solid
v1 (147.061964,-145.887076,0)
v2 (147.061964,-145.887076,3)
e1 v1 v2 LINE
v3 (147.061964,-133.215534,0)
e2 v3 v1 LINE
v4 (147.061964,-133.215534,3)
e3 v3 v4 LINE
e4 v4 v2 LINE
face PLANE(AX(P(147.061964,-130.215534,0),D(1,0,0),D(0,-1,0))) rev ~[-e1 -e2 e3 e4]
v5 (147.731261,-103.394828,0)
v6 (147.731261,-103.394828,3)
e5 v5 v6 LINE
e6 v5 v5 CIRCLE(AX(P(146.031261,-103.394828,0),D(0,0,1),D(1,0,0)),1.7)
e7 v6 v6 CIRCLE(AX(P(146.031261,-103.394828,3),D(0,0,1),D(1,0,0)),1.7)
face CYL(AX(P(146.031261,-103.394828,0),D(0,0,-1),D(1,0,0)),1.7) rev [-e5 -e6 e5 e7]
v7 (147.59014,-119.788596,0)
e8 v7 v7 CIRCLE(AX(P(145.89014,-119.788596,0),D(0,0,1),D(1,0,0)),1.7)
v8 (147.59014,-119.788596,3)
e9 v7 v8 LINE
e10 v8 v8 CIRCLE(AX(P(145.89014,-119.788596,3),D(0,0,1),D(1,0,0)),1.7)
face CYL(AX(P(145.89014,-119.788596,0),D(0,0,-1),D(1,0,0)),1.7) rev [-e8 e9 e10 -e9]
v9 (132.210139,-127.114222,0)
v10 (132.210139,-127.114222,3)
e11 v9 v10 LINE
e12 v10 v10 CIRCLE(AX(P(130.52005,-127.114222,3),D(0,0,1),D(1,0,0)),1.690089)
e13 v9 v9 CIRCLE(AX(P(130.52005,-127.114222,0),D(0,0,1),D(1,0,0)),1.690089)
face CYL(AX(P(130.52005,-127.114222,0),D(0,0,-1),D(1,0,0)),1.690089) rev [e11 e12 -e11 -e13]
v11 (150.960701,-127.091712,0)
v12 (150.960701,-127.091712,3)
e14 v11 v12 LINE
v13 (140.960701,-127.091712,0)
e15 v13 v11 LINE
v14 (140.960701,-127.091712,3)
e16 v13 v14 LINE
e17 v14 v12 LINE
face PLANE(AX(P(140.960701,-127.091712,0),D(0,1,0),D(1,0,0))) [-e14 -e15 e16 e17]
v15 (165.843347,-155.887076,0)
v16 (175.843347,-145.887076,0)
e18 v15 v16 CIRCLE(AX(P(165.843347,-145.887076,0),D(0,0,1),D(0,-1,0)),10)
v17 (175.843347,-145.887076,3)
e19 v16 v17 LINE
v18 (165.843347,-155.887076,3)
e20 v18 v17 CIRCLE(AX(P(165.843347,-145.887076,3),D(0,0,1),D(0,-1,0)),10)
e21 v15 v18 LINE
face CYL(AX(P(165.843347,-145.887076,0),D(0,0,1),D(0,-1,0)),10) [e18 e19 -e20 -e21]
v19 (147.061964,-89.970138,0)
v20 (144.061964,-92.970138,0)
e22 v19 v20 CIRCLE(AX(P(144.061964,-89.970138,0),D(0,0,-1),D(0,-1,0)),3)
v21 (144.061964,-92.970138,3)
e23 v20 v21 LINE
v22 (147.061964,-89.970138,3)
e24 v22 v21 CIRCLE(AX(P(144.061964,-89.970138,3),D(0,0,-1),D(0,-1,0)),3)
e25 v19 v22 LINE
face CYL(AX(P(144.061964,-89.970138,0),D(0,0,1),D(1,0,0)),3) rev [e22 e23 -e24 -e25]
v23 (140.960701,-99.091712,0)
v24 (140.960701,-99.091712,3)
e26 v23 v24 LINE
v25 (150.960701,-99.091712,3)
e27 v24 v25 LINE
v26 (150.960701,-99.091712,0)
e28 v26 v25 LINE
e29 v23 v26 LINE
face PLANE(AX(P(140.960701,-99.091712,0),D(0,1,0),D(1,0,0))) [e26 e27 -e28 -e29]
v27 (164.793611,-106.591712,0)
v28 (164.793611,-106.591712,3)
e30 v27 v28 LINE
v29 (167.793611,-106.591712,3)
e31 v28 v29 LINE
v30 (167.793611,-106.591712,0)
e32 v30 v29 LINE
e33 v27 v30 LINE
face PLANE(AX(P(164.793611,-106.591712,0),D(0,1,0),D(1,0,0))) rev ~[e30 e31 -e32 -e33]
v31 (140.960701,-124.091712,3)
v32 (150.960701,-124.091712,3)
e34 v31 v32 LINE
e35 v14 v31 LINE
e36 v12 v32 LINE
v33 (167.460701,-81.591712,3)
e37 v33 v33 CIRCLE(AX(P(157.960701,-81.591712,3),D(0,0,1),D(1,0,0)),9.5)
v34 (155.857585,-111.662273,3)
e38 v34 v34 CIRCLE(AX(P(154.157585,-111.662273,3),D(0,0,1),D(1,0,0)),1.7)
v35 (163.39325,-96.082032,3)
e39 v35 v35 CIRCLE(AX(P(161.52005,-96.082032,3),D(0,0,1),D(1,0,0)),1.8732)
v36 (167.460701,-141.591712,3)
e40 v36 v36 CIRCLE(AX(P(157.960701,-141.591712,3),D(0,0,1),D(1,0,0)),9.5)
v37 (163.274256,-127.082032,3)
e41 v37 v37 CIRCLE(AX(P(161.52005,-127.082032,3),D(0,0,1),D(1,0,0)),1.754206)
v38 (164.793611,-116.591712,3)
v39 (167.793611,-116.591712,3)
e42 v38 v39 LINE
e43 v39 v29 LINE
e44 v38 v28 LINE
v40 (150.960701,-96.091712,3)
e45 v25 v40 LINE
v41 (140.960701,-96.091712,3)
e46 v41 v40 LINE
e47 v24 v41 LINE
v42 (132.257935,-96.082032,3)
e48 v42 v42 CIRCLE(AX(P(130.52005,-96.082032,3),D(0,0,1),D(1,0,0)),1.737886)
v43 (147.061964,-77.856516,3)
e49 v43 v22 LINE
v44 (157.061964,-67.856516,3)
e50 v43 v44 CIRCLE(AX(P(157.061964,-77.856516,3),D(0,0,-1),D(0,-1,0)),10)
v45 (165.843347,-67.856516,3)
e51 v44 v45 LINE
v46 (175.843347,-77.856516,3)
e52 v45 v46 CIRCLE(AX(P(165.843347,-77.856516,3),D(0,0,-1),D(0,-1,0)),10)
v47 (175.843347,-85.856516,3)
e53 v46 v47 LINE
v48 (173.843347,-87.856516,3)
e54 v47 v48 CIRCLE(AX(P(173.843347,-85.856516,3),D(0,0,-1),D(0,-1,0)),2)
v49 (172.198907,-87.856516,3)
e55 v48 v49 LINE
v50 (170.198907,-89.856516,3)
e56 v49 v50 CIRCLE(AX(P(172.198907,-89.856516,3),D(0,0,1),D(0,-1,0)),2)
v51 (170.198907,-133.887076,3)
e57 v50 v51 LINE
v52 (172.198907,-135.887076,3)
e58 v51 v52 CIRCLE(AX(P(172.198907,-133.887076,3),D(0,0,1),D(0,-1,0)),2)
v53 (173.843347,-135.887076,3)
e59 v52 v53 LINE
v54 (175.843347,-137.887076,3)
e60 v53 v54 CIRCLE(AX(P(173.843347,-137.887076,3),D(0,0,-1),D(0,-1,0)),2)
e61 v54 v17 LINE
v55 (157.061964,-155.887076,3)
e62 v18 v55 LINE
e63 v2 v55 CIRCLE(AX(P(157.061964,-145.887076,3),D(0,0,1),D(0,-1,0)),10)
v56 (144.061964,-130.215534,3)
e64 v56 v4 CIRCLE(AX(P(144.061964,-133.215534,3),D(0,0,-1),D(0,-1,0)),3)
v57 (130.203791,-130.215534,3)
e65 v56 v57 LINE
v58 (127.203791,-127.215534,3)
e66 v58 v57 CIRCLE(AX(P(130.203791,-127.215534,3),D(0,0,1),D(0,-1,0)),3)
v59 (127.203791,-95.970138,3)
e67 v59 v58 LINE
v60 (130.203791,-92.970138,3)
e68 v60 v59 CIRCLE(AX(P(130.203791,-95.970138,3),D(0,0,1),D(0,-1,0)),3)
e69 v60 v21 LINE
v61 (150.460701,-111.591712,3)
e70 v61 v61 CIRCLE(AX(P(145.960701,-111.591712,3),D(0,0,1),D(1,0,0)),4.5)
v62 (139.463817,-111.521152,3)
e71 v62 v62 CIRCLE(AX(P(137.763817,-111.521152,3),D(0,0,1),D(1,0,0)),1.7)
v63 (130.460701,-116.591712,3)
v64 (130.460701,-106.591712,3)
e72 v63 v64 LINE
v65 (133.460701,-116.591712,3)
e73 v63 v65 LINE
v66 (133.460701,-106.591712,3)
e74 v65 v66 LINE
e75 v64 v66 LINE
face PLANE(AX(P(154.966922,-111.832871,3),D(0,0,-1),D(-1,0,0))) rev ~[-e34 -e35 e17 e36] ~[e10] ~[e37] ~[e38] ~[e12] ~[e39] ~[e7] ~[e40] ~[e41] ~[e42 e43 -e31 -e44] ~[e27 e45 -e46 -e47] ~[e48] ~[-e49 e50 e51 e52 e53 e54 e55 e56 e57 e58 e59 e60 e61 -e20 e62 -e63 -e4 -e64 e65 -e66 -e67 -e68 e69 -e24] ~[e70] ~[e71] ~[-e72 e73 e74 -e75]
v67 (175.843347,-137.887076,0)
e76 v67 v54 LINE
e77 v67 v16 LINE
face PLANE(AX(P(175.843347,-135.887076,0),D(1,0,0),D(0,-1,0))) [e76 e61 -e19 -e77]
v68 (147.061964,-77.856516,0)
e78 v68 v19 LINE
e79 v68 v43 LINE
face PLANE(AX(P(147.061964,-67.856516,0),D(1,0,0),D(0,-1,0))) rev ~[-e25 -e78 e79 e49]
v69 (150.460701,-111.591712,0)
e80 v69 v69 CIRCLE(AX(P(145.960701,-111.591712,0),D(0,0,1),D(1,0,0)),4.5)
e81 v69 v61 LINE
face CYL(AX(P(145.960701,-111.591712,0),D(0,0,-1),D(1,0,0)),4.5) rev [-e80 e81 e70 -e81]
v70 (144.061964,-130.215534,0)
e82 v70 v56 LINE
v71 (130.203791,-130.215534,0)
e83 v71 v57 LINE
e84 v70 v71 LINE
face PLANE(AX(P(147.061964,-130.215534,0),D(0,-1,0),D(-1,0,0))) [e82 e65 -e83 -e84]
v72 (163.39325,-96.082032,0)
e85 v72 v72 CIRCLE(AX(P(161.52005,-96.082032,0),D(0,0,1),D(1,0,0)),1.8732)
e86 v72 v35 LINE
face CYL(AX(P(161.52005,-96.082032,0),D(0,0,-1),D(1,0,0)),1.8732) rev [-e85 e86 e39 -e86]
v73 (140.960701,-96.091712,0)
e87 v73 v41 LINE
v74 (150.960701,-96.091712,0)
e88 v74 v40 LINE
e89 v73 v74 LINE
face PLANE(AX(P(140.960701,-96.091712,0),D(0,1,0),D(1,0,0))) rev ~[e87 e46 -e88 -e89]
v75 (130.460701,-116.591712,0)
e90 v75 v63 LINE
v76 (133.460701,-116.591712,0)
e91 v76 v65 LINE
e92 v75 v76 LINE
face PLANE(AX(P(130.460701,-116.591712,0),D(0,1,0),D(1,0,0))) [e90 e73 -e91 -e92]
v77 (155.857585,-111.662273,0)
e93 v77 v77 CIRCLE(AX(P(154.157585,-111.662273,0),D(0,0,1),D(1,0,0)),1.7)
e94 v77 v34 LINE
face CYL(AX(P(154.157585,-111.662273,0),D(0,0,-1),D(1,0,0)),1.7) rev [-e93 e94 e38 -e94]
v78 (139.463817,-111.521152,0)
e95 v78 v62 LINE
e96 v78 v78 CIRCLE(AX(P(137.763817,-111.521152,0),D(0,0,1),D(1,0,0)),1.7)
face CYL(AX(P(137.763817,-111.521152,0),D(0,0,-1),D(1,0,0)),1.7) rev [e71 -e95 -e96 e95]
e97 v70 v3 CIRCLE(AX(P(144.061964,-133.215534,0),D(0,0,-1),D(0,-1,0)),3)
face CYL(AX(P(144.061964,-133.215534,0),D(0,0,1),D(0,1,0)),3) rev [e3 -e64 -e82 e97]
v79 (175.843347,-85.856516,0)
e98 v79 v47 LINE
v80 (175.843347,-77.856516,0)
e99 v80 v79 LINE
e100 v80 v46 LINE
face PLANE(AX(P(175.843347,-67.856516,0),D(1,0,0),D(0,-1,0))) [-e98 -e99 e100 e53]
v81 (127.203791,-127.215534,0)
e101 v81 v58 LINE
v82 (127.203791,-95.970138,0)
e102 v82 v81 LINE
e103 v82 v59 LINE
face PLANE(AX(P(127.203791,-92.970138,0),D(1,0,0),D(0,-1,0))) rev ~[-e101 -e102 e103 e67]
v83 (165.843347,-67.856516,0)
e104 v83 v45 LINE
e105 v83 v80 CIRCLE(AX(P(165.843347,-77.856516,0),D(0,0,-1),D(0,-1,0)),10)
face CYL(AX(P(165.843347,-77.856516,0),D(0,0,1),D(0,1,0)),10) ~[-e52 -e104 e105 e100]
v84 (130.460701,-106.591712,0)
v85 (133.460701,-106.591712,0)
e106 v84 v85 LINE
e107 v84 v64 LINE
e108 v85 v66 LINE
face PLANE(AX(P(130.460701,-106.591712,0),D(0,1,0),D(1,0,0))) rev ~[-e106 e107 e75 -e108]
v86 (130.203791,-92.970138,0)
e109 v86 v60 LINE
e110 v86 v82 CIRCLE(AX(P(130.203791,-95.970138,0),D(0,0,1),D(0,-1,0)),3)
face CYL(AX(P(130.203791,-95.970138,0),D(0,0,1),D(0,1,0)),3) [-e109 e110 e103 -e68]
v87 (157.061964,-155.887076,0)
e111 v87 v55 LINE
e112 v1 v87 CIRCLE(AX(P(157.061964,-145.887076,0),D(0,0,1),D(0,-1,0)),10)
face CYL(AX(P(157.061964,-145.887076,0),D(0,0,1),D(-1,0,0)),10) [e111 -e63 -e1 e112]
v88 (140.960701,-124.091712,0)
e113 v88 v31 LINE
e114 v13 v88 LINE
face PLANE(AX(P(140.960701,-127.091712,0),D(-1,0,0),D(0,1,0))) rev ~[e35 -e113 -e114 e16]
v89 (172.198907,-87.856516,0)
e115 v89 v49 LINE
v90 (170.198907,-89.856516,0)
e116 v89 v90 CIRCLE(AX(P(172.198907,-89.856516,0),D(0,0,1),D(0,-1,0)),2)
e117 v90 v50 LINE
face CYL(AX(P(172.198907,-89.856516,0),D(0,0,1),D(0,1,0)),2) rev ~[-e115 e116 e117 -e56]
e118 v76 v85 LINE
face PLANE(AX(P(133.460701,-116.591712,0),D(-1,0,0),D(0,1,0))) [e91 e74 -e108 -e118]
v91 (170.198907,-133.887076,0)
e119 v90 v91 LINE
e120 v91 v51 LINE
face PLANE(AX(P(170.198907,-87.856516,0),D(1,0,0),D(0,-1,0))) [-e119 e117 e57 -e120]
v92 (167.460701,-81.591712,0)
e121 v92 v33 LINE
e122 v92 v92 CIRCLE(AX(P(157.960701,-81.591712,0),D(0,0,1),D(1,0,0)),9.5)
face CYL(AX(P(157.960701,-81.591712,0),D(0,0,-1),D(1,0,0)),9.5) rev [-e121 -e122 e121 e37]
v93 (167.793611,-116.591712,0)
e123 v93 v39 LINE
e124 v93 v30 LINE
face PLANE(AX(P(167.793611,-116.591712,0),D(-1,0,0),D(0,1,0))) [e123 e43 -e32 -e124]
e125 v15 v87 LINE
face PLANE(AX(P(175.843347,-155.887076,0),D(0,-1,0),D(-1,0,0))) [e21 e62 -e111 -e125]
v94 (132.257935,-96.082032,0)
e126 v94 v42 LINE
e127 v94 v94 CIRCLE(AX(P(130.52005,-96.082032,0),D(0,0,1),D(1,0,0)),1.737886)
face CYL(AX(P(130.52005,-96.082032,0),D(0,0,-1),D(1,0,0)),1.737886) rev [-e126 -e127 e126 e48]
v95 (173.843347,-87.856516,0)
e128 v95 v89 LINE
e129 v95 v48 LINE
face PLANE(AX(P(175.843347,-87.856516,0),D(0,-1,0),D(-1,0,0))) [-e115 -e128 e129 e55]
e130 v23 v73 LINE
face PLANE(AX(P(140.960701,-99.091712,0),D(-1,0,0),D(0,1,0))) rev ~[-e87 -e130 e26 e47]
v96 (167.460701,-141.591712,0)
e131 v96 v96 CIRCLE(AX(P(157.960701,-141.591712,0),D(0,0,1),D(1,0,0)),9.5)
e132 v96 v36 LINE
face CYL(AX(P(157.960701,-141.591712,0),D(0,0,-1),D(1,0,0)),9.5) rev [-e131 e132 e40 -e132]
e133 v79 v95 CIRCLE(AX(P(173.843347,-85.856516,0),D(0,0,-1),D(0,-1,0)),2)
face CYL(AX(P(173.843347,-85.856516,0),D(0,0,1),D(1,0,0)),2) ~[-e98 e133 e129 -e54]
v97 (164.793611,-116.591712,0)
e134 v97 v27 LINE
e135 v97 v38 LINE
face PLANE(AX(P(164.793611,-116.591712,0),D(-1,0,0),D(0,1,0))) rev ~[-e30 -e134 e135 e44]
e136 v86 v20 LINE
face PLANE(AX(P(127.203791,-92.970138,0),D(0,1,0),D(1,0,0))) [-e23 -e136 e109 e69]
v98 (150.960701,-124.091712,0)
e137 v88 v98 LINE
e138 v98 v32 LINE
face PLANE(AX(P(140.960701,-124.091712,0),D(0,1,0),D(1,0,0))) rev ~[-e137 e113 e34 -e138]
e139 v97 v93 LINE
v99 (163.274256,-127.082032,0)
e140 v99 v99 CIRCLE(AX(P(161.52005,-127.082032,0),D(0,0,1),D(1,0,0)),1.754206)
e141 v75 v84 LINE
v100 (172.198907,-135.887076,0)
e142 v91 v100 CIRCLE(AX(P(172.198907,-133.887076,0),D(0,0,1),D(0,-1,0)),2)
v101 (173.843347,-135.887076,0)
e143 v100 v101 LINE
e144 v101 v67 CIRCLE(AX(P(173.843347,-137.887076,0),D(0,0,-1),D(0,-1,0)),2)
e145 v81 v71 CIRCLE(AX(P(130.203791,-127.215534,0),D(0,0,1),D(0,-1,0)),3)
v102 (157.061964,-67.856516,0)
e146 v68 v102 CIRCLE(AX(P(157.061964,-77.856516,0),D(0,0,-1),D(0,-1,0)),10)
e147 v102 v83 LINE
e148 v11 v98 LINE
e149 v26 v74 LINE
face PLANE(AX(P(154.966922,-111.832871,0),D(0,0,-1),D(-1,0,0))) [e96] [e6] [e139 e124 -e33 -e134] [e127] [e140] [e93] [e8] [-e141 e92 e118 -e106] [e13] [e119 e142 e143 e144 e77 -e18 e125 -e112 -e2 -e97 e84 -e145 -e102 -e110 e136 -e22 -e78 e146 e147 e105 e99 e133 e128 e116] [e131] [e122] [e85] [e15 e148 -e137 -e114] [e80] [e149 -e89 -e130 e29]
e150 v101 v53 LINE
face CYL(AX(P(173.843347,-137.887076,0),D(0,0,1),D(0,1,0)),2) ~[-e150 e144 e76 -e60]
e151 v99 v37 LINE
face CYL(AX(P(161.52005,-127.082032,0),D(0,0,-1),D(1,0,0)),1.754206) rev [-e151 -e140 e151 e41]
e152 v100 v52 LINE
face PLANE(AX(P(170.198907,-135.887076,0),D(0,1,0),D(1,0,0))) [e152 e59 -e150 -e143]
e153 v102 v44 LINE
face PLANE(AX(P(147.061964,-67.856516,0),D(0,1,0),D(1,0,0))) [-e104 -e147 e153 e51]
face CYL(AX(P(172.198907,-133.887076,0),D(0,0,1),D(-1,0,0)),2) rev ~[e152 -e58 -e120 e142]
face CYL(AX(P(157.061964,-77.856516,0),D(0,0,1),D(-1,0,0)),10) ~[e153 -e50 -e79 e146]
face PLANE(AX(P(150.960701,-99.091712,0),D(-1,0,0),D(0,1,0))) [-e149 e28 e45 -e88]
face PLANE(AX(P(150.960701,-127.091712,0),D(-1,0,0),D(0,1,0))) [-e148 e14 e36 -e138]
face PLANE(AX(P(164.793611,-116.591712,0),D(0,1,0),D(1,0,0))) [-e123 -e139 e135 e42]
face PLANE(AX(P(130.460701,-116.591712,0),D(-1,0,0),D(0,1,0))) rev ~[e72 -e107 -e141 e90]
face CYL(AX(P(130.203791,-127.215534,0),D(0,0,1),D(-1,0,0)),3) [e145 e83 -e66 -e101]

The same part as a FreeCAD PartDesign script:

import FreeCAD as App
import Part
import Sketcher

V = App.Vector
Q = App.Units.Quantity


def edges_at(feature, points):
    """Names of the edges that pass closest to the given points."""
    edges = feature.Shape.Edges
    near = lambda p: min(range(len(edges)), key=lambda i: edges[i].distToShape(Part.Vertex(*p))[0])
    return sorted({f"Edge{near(p) + 1}" for p in points})


def add_polygon(sketch, points):
    """Adds a closed chain of lines whose ends are joined by coincident constraints."""
    first, n = sketch.GeometryCount, len(points)
    for a, b in zip(points, points[1:] + points[:1]):
        sketch.addGeometry(Part.LineSegment(App.Vector(*a, 0), App.Vector(*b, 0)), False)
    for i in range(n):
        sketch.addConstraint(Sketcher.Constraint("Coincident", first + i, 2, first + (i + 1) % n, 1))

doc = App.newDocument("Part")
body = doc.addObject("PartDesign::Body", "Body")

# Sketch on XY plane
sketch1 = doc.addObject("Sketcher::SketchObject", "Sketch")
body.addObject(sketch1)
sketch1.AttachmentSupport = (doc.XY_Plane, [""])
sketch1.MapMode = "FlatFace"
add_polygon(sketch1, [(147.1, -67.9), (147.1, -93), (127.2, -93), (127.2, -130.2), (147.1, -130.2), (147.1, -155.9), (175.8, -155.9), (175.8, -135.9), (170.2, -135.9), (170.2, -87.9), (175.8, -87.9), (175.8, -67.9)])  # lines 0-11
sketch1.addGeometry(Part.Circle(V(158, -141.6, 0), V(0, 0, 1), 9.5), False)  # 12
sketch1.addGeometry(Part.Circle(V(161.5, -127.1, 0), V(0, 0, 1), 1.8), False)  # 13
add_polygon(sketch1, [(164.8, -116.6), (164.8, -106.6), (167.8, -106.6), (167.8, -116.6)])  # lines 14-17
sketch1.addGeometry(Part.Circle(V(154.2, -111.7, 0), V(0, 0, 1), 1.7), False)  # 18
add_polygon(sketch1, [(141, -127.1), (141, -124.1), (151, -124.1), (151, -127.1)])  # lines 19-22
sketch1.addGeometry(Part.Circle(V(145.9, -119.8, 0), V(0, 0, 1), 1.7), False)  # 23
sketch1.addGeometry(Part.Circle(V(146, -111.6, 0), V(0, 0, 1), 4.5), False)  # 24
sketch1.addGeometry(Part.Circle(V(130.5, -127.1, 0), V(0, 0, 1), 1.7), False)  # 25
add_polygon(sketch1, [(130.5, -116.6), (130.5, -106.6), (133.5, -106.6), (133.5, -116.6)])  # lines 26-29
sketch1.addGeometry(Part.Circle(V(161.5, -96.1, 0), V(0, 0, 1), 1.9), False)  # 30
sketch1.addGeometry(Part.Circle(V(158, -81.6, 0), V(0, 0, 1), 9.5), False)  # 31
sketch1.addGeometry(Part.Circle(V(146, -103.4, 0), V(0, 0, 1), 1.7), False)  # 32
add_polygon(sketch1, [(141, -99.1), (141, -96.1), (151, -96.1), (151, -99.1)])  # lines 33-36
sketch1.addGeometry(Part.Circle(V(137.8, -111.5, 0), V(0, 0, 1), 1.7), False)  # 37
sketch1.addGeometry(Part.Circle(V(130.5, -96.1, 0), V(0, 0, 1), 1.7), False)  # 38
sketch1.addConstraint([
    Sketcher.Constraint("Vertical", 0),
    Sketcher.Constraint("Horizontal", 1),
    Sketcher.Constraint("Vertical", 2),
    Sketcher.Constraint("Horizontal", 3),
    Sketcher.Constraint("Vertical", 4),
    Sketcher.Constraint("Horizontal", 5),
    Sketcher.Constraint("Vertical", 6),
    Sketcher.Constraint("Horizontal", 7),
    Sketcher.Constraint("Vertical", 8),
    Sketcher.Constraint("Horizontal", 9),
    Sketcher.Constraint("Vertical", 10),
    Sketcher.Constraint("Horizontal", 11),
    Sketcher.Constraint("Vertical", 14),
    Sketcher.Constraint("Horizontal", 15),
    Sketcher.Constraint("Vertical", 16),
    Sketcher.Constraint("Horizontal", 17),
    Sketcher.Constraint("Vertical", 19),
    Sketcher.Constraint("Horizontal", 20),
    Sketcher.Constraint("Vertical", 21),
    Sketcher.Constraint("Horizontal", 22),
    Sketcher.Constraint("Vertical", 26),
    Sketcher.Constraint("Horizontal", 27),
    Sketcher.Constraint("Vertical", 28),
    Sketcher.Constraint("Horizontal", 29),
    Sketcher.Constraint("Vertical", 33),
    Sketcher.Constraint("Horizontal", 34),
    Sketcher.Constraint("Vertical", 35),
    Sketcher.Constraint("Horizontal", 36),
    Sketcher.Constraint("Equal", 18, 23),
    Sketcher.Constraint("Equal", 12, 31),
    Sketcher.Constraint("Equal", 23, 32),
    Sketcher.Constraint("Equal", 32, 37),
    Sketcher.Constraint("Horizontal", 30, 3, 38, 3),
    Sketcher.Constraint("Horizontal", 15, 2, 26, 2),
    Sketcher.Constraint("Horizontal", 17, 2, 28, 2),
    Sketcher.Constraint("Vertical", 13, 3, 30, 3),
    Sketcher.Constraint("Vertical", 12, 3, 31, 3),
    Sketcher.Constraint("Vertical", 25, 3, 38, 3),
    Sketcher.Constraint("Vertical", 0, 2, 3, 2),
    Sketcher.Constraint("Vertical", 6, 2, 9, 2),
    Sketcher.Constraint("Vertical", 22, 2, 33, 2),
    Sketcher.Constraint("Vertical", 21, 2, 34, 2),
    Sketcher.Constraint("Equal", 17, 27),
    Sketcher.Constraint("Equal", 6, 10),
    Sketcher.Constraint("Equal", 36, 14),
    Sketcher.Constraint("Equal", 29, 19),
    Sketcher.Constraint("Equal", 21, 33),
    Sketcher.Constraint("Diameter", 12, Q("19 mm")),
    Sketcher.Constraint("Diameter", 24, Q("9 mm")),
    Sketcher.Constraint("Diameter", 18, Q("3.4 mm")),
    Sketcher.Constraint("DistanceX", 15, 1, 15, 2, Q("3 mm")),
    Sketcher.Constraint("DistanceX", 20, 1, 20, 2, Q("10 mm")),
    Sketcher.Constraint("DistanceY", 6, 1, 6, 2, Q("20 mm")),
    Sketcher.Constraint("DistanceX", 24, 3, 12, 3, Q("12 mm")),
    Sketcher.Constraint("DistanceY", 12, 3, 24, 3, Q("30 mm")),
    Sketcher.Constraint("DistanceX", 25, 3, 13, 3, Q("31 mm")),
    Sketcher.Constraint("DistanceY", 13, 3, 30, 3, Q("31 mm")),
    Sketcher.Constraint("DistanceY", 24, 3, 31, 3, Q("30 mm")),
    Sketcher.Constraint("DistanceY", 24, 3, 14, 2, Q("5 mm")),
    Sketcher.Constraint("DistanceX", 19, 2, 24, 3, Q("5 mm")),
    Sketcher.Constraint("Diameter", 30, Q("3.7464 mm")),
    Sketcher.Constraint("DistanceY", 19, 2, 24, 3, Q("12.5 mm")),
    Sketcher.Constraint("DistanceX", 26, 2, 24, 3, Q("15.5 mm")),
    Sketcher.Constraint("DistanceY", 27, 2, 33, 2, Q("10.5 mm")),
    Sketcher.Constraint("Diameter", 13, Q("3.508412 mm")),
    Sketcher.Constraint("Diameter", 25, Q("3.380178 mm")),
    Sketcher.Constraint("Diameter", 38, Q("3.475771 mm")),
    Sketcher.Constraint("DistanceX", 7, 2, 7, 1, Q("5.64444 mm")),
    Sketcher.Constraint("DistanceY", 8, 1, 8, 2, Q("48.03056 mm")),
    Sketcher.Constraint("DistanceX", -1, 1, 12, 3, Q("157.960701 mm")),
    Sketcher.Constraint("DistanceY", 3, 2, 13, 3, Q("3.133502 mm")),
    Sketcher.Constraint("DistanceX", 1, 2, 1, 1, Q("19.858173 mm")),
    Sketcher.Constraint("DistanceX", 5, 1, 5, 2, Q("28.781383 mm")),
    Sketcher.Constraint("DistanceY", 0, 2, 0, 1, Q("25.113622 mm")),
    Sketcher.Constraint("DistanceY", 2, 2, 2, 1, Q("37.245396 mm")),
    Sketcher.Constraint("DistanceX", -1, 1, 13, 3, Q("161.52005 mm")),
    Sketcher.Constraint("DistanceX", -1, 1, 23, 3, Q("145.89014 mm")),
    Sketcher.Constraint("DistanceY", 25, 3, -1, 1, Q("127.114222 mm")),
    Sketcher.Constraint("DistanceX", -1, 1, 32, 3, Q("146.031261 mm")),
    Sketcher.Constraint("DistanceY", 32, 3, -1, 1, Q("103.394828 mm")),
    Sketcher.Constraint("DistanceY", 37, 3, -1, 1, Q("111.521152 mm")),
    Sketcher.Constraint("DistanceY", 0, 2, -1, 1, Q("92.970138 mm")),
    Sketcher.Constraint("DistanceX", -1, 1, 1, 2, Q("127.203791 mm")),
    Sketcher.Constraint("DistanceX", -1, 1, 14, 2, Q("164.793611 mm")),
    Sketcher.Constraint("DistanceY", 12, 3, 13, 3, Q("14.50968 mm")),
    Sketcher.Constraint("DistanceY", 13, 3, 18, 3, Q("15.41976 mm")),
    Sketcher.Constraint("DistanceY", 23, 3, 32, 3, Q("16.393768 mm")),
    Sketcher.Constraint("DistanceX", 37, 3, 18, 3, Q("16.393768 mm")),
    Sketcher.Constraint("DistanceX", -1, 1, 18, 3, Q("154.157585 mm")),
])
pad1 = doc.addObject("PartDesign::Pad", "Pad")
body.addObject(pad1)
pad1.Profile = sketch1
pad1.Length = 3
doc.recompute()

fillet = doc.addObject("PartDesign::Fillet", "Fillet")
body.addObject(fillet)
fillet.Base = (pad1, edges_at(pad1, [
    (147.062, -67.857, 1.5),
    (175.843, -67.857, 1.5),
    (175.843, -155.887, 1.5),
    (147.062, -155.887, 1.5),
]))
fillet.Radius = 10
doc.recompute()

fillet2 = doc.addObject("PartDesign::Fillet", "Fillet001")
body.addObject(fillet2)
fillet2.Base = (fillet, edges_at(fillet, [
    (147.062, -130.216, 1.5),
    (127.204, -130.216, 1.5),
    (127.204, -92.97, 1.5),
    (147.062, -92.97, 1.5),
]))
fillet2.Radius = 3
doc.recompute()

fillet3 = doc.addObject("PartDesign::Fillet", "Fillet002")
body.addObject(fillet3)
fillet3.Base = (fillet2, edges_at(fillet2, [
    (175.843, -87.857, 1.5),
    (170.199, -87.857, 1.5),
    (170.199, -135.887, 1.5),
    (175.843, -135.887, 1.5),
]))
fillet3.Radius = 2

doc.recompute()
